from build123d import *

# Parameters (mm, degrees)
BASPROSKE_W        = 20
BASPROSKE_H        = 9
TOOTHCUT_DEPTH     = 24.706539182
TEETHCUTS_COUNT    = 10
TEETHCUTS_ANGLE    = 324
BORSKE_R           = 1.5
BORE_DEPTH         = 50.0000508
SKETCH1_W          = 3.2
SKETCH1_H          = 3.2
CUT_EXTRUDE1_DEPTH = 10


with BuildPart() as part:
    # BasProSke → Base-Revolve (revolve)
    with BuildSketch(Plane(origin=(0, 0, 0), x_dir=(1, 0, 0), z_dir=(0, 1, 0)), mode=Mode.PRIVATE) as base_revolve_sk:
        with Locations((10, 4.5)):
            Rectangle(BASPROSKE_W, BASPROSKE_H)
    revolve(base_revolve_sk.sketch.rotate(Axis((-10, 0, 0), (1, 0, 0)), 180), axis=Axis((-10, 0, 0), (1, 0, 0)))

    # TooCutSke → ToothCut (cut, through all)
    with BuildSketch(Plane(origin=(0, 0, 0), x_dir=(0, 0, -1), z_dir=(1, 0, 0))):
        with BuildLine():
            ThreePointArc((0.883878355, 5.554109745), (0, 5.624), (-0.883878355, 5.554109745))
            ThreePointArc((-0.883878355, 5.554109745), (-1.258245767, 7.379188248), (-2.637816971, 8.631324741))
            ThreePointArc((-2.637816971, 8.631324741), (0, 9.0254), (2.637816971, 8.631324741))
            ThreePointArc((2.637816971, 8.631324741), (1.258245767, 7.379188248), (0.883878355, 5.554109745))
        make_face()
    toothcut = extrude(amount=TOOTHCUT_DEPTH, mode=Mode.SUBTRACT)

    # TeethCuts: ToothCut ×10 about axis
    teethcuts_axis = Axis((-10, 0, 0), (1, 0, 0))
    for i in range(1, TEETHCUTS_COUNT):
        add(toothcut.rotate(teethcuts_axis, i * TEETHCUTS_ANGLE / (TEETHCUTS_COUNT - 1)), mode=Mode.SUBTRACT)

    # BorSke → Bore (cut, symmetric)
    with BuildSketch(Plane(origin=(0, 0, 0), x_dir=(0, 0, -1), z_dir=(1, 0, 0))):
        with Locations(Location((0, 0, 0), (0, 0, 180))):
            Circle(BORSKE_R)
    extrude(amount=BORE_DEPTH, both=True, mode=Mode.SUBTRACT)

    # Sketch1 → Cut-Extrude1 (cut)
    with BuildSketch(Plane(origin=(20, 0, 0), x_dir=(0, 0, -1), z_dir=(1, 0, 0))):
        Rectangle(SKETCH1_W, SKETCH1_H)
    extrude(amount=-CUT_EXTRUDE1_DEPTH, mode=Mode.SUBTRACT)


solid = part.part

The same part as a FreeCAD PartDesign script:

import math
import FreeCAD as App
import Part
import Sketcher
Q = App.Units.Quantity

doc = App.newDocument("Part")
params = doc.addObject("Spreadsheet::Sheet", "Params")
for row, (alias, value) in enumerate([
    ("sketch1_width", "20 mm"),
    ("sketch1_height", "9 mm"),
    ("revolution_angle", "360 deg"),
    ("sketch2_radius", "3 mm"),
    ("sketch3_diameter", "3 mm"),
    ("pocket2_length", "100.000102 mm"),
    ("sketch4_width", "3.2 mm"),
    ("pocket3_length", "10 mm"),
], start=1):
    params.set(f"A{row}", alias)
    params.set(f"B{row}", "=" + value)
    params.setAlias(f"B{row}", alias)

body = doc.addObject("PartDesign::Body", "Body")

# Sketch on XZ plane
sketch1 = body.newObject("Sketcher::SketchObject", "Sketch")
sketch1.AttachmentSupport = (doc.getObject("XZ_Plane"), [""])
sketch1.MapMode = "FlatFace"
sketch1.addGeometry([
    Part.LineSegment(App.Vector(0, -9, 0), App.Vector(0, 0, 0)),
    Part.LineSegment(App.Vector(0, 0, 0), App.Vector(20, 0, 0)),
    Part.LineSegment(App.Vector(20, 0, 0), App.Vector(20, -9, 0)),
    Part.LineSegment(App.Vector(20, -9, 0), App.Vector(0, -9, 0)),
], False)
sketch1.addConstraint([
    Sketcher.Constraint("Coincident", 0, 2, 1, 1),
    Sketcher.Constraint("Coincident", 1, 2, 2, 1),
    Sketcher.Constraint("Coincident", 2, 2, 3, 1),
    Sketcher.Constraint("Coincident", 3, 2, 0, 1),
    Sketcher.Constraint("Vertical", 0),
    Sketcher.Constraint("Horizontal", 1),
    Sketcher.Constraint("Vertical", 2),
    Sketcher.Constraint("Horizontal", 3),
    Sketcher.Constraint("Coincident", 0, 2, -1, 1),
    Sketcher.Constraint("DistanceX", 1, 1, 1, 2, Q("20 mm")),
    Sketcher.Constraint("DistanceY", 0, 1, 0, 2, Q("9 mm")),
])
sketch1.setExpression("Constraints[9]", "Params.sketch1_width")
sketch1.setExpression("Constraints[10]", "Params.sketch1_height")
revolution = body.newObject("PartDesign::Revolution", "Revolution")
revolution.Profile = sketch1
revolution.ReferenceAxis = (sketch1, ["H_Axis"])
revolution.setExpression("Angle", "Params.revolution_angle")

# Sketch on YZ plane
sketch2 = body.newObject("Sketcher::SketchObject", "Sketch001")
sketch2.AttachmentSupport = (doc.getObject("YZ_Plane"), [""])
sketch2.MapMode = "FlatFace"
sketch2.addGeometry([
    Part.ArcOfCircle(Part.Circle(App.Vector(0, 0, 0), App.Vector(0, 0, 1), 5.624), math.radians(-9.042199), math.radians(9.042199)),
    Part.ArcOfCircle(Part.Circle(App.Vector(5.893626, -3.864605, 0), App.Vector(0, 0, 1), 3), math.radians(24.137585), math.radians(96.498212)),
    Part.ArcOfCircle(Part.Circle(App.Vector(0, 0, 0), App.Vector(0, 0, 1), 9.0254), math.radians(-16.993663), math.radians(16.993663)),
    Part.ArcOfCircle(Part.Circle(App.Vector(5.893626, 3.864605, 0), App.Vector(0, 0, 1), 3), math.radians(-96.498212), math.radians(-24.137585)),
], False)
sketch2.addConstraint([
    Sketcher.Constraint("Coincident", 0, 1, 1, 2),
    Sketcher.Constraint("Coincident", 1, 1, 2, 1),
    Sketcher.Constraint("Coincident", 2, 2, 3, 2),
    Sketcher.Constraint("Coincident", 3, 1, 0, 2),
    Sketcher.Constraint("Coincident", 0, 3, -1, 1),
    Sketcher.Constraint("Coincident", 2, 3, -1, 1),
    Sketcher.Constraint("Equal", 1, 3),
    Sketcher.Constraint("Symmetric", 1, 3, 3, 3, -1),
    Sketcher.Constraint("Radius", 1, Q("3 mm")),
    Sketcher.Constraint("Radius", 0, Q("5.624 mm")),
    Sketcher.Constraint("Radius", 2, Q("9.0254 mm")),
    Sketcher.Constraint("DistanceX", 1, 3, 1, 1, Q("2.737698 mm")),
    Sketcher.Constraint("DistanceX", -1, 1, 0, 1, Q("5.55411 mm")),
])
sketch2.setExpression("Constraints[8]", "Params.sketch2_radius")
pocket1 = body.newObject("PartDesign::Pocket", "Pocket")
pocket1.Profile = sketch2
pocket1.Type = "ThroughAll"
pocket1.Reversed = True
doc.recompute()

polarpattern = body.newObject("PartDesign::PolarPattern", "PolarPattern")
polarpattern.Originals = [pocket1]
polarpattern.Axis = (doc.getObject("X_Axis"), [""])
polarpattern.Angle = 360
polarpattern.Occurrences = 10
body.Tip = polarpattern

# Sketch on YZ plane
sketch3 = body.newObject("Sketcher::SketchObject", "Sketch002")
sketch3.AttachmentSupport = (doc.getObject("YZ_Plane"), [""])
sketch3.MapMode = "FlatFace"
sketch3.addGeometry(Part.Circle(App.Vector(0, 0, 0), App.Vector(0, 0, 1), 1.5), False)
sketch3.addConstraint([
    Sketcher.Constraint("Coincident", 0, 3, -1, 1),
    Sketcher.Constraint("Diameter", 0, Q("3 mm")),
])
sketch3.setExpression("Constraints[1]", "Params.sketch3_diameter")
pocket2 = body.newObject("PartDesign::Pocket", "Pocket001")
pocket2.Profile = sketch3
pocket2.setExpression("Length", "Params.pocket2_length")
pocket2.Midplane = True

# Sketch on YZ plane
sketch4 = body.newObject("Sketcher::SketchObject", "Sketch003")
sketch4.AttachmentSupport = (doc.getObject("YZ_Plane"), [""])
sketch4.MapMode = "FlatFace"
sketch4.AttachmentOffset = App.Placement(App.Vector(0, 0, 20), App.Rotation())
sketch4.addGeometry([
    Part.LineSegment(App.Vector(1.6, 1.6, 0), App.Vector(-1.6, 1.6, 0)),
    Part.LineSegment(App.Vector(-1.6, 1.6, 0), App.Vector(-1.6, -1.6, 0)),
    Part.LineSegment(App.Vector(-1.6, -1.6, 0), App.Vector(1.6, -1.6, 0)),
    Part.LineSegment(App.Vector(1.6, -1.6, 0), App.Vector(1.6, 1.6, 0)),
], False)
sketch4.addConstraint([
    Sketcher.Constraint("Coincident", 0, 2, 1, 1),
    Sketcher.Constraint("Coincident", 1, 2, 2, 1),
    Sketcher.Constraint("Coincident", 2, 2, 3, 1),
    Sketcher.Constraint("Coincident", 3, 2, 0, 1),
    Sketcher.Constraint("Horizontal", 0),
    Sketcher.Constraint("Vertical", 1),
    Sketcher.Constraint("Horizontal", 2),
    Sketcher.Constraint("Vertical", 3),
    Sketcher.Constraint("Symmetric", 0, 2, 2, 2, -1, 1),
    Sketcher.Constraint("Equal", 2, 1),
    Sketcher.Constraint("DistanceX", 0, 2, 0, 1, Q("3.2 mm")),
])
sketch4.setExpression("Constraints[10]", "Params.sketch4_width")
pocket3 = body.newObject("PartDesign::Pocket", "Pocket002")
pocket3.Profile = sketch4
pocket3.setExpression("Length", "Params.pocket3_length")

doc.recompute()
